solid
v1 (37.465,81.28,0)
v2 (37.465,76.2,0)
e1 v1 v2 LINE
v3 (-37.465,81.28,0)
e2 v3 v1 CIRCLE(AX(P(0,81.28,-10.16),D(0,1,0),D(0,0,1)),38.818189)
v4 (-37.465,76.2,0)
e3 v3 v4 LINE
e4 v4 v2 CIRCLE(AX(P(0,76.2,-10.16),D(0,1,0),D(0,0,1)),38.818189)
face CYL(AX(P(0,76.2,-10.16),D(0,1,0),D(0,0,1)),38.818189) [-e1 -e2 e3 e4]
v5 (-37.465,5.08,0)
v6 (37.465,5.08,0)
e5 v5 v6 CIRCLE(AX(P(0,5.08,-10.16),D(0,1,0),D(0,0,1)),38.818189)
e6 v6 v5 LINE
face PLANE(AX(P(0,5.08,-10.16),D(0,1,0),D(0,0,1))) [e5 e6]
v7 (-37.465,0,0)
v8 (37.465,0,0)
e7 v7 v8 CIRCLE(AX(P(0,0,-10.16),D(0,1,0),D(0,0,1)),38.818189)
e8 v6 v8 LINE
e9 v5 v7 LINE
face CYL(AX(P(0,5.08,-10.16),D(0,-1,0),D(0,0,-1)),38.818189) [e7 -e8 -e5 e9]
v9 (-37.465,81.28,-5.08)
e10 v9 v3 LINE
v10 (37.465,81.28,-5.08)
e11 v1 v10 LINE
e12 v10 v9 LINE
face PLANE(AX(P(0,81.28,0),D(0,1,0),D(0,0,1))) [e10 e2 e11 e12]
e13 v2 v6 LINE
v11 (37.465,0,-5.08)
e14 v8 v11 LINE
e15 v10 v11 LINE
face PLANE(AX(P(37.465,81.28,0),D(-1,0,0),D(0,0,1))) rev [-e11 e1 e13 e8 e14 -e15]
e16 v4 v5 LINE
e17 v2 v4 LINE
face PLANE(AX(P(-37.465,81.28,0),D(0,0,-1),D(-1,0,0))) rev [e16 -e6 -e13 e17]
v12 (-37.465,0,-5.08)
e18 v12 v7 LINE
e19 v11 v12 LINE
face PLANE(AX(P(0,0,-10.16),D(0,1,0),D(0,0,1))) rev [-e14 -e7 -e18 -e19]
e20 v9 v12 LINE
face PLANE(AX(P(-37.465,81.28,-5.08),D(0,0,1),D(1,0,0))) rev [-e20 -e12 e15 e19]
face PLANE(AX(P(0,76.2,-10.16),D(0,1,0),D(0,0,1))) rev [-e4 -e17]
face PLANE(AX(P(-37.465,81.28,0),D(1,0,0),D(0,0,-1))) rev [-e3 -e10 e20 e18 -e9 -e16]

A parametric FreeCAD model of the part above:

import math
import FreeCAD as App
import Part
import Sketcher
Q = App.Units.Quantity


def add_polygon(sketch, points):
    """Adds a closed chain of lines whose ends are joined by coincident constraints."""
    first, n = sketch.GeometryCount, len(points)
    for a, b in zip(points, points[1:] + points[:1]):
        sketch.addGeometry(Part.LineSegment(App.Vector(*a, 0), App.Vector(*b, 0)), False)
    for i in range(n):
        sketch.addConstraint(Sketcher.Constraint("Coincident", first + i, 2, first + (i + 1) % n, 1))

doc = App.newDocument("Part")
params = doc.addObject("Spreadsheet::Sheet", "Params")
for row, (alias, value) in enumerate([
    ("sketch1_width", "2.95 in"),
    ("pad1_length", "0.2 in"),
    ("sketch2_height", "0.2 in"),
    ("sketch2_width", "2.95 in"),
    ("pad2_length", "3 in"),
    ("pad2_length2", "0.2 in"),
    ("sketch3_width", "2.95 in"),
    ("pad3_length", "0.2 in"),
], start=1):
    params.set(f"A{row}", alias)
    params.set(f"B{row}", "=" + value)
    params.setAlias(f"B{row}", alias)

body = doc.addObject("PartDesign::Body", "Body")

# Sketch on XZ plane
sketch1 = doc.addObject("Sketcher::SketchObject", "Sketch")
body.addObject(sketch1)
sketch1.AttachmentSupport = (doc.XZ_Plane, [""])
sketch1.MapMode = "FlatFace"
sketch1.addGeometry(Part.LineSegment(App.Vector(37, 0, 0), App.Vector(-37, 0, 0)), False)
sketch1.addGeometry(Part.ArcOfCircle(Part.Circle(App.Vector(0, -10, 0), App.Vector(0, 0, 1), 39), math.radians(15), math.radians(165)), False)
sketch1.addConstraint(Sketcher.Constraint("Coincident", 0, 1, 1, 1))
sketch1.addConstraint(Sketcher.Constraint("Coincident", 1, 2, 0, 2))
sketch1.addConstraint(Sketcher.Constraint("Horizontal", 0))
sketch1.addConstraint(Sketcher.Constraint("Symmetric", 0, 1, 1, 2, -1, 1))
sketch1.addConstraint(Sketcher.Constraint("DistanceX", 0, 2, 0, 1, Q("2.95 in")))
sketch1.addConstraint(Sketcher.Constraint("DistanceY", 1, 3, -1, 1, Q("0.4 in")))
sketch1.setExpression("Constraints[4]", "Params.sketch1_width")
pad1 = doc.addObject("PartDesign::Pad", "Pad")
body.addObject(pad1)
pad1.Profile = sketch1
pad1.setExpression("Length", "Params.pad1_length")
pad1.Reversed = True

# Sketch on XZ plane
sketch2 = doc.addObject("Sketcher::SketchObject", "Sketch001")
body.addObject(sketch2)
sketch2.AttachmentSupport = (doc.XZ_Plane, [""])
sketch2.MapMode = "FlatFace"
sketch2.AttachmentOffset = App.Placement(App.Vector(0, 0, -0.2 * 25.4), App.Rotation())
add_polygon(sketch2, [(-37, -5), (-37, 0), (37, 0), (37, -5)])  # lines 0-3
sketch2.addConstraint(Sketcher.Constraint("Vertical", 0))
sketch2.addConstraint(Sketcher.Constraint("Horizontal", 1))
sketch2.addConstraint(Sketcher.Constraint("Vertical", 2))
sketch2.addConstraint(Sketcher.Constraint("Horizontal", 3))
sketch2.addConstraint(Sketcher.Constraint("Symmetric", 0, 2, 1, 2, -1, 1))
sketch2.addConstraint(Sketcher.Constraint("DistanceY", 0, 1, 0, 2, Q("0.2 in")))
sketch2.addConstraint(Sketcher.Constraint("DistanceX", 1, 1, 1, 2, Q("2.95 in")))
sketch2.setExpression("Constraints[9]", "Params.sketch2_height")
sketch2.setExpression("Constraints[10]", "Params.sketch2_width")
pad2 = doc.addObject("PartDesign::Pad", "Pad001")
body.addObject(pad2)
pad2.Profile = sketch2
pad2.Type = "TwoLengths"
pad2.setExpression("Length", "Params.pad2_length")
pad2.setExpression("Length2", "Params.pad2_length2")
pad2.Reversed = True

# Sketch on XZ plane
sketch3 = doc.addObject("Sketcher::SketchObject", "Sketch002")
body.addObject(sketch3)
sketch3.AttachmentSupport = (doc.XZ_Plane, [""])
sketch3.MapMode = "FlatFace"
sketch3.AttachmentOffset = App.Placement(App.Vector(0, 0, -3 * 25.4), App.Rotation())
sketch3.addGeometry(Part.LineSegment(App.Vector(37, 0, 0), App.Vector(-37, 0, 0)), False)
sketch3.addGeometry(Part.ArcOfCircle(Part.Circle(App.Vector(0, -10, 0), App.Vector(0, 0, 1), 39), math.radians(15), math.radians(165)), False)
sketch3.addConstraint(Sketcher.Constraint("Coincident", 0, 1, 1, 1))
sketch3.addConstraint(Sketcher.Constraint("Coincident", 1, 2, 0, 2))
sketch3.addConstraint(Sketcher.Constraint("Horizontal", 0))
sketch3.addConstraint(Sketcher.Constraint("Symmetric", 0, 1, 1, 2, -1, 1))
sketch3.addConstraint(Sketcher.Constraint("DistanceX", 0, 2, 0, 1, Q("2.95 in")))
sketch3.addConstraint(Sketcher.Constraint("DistanceY", 1, 3, -1, 1, Q("0.4 in")))
sketch3.setExpression("Constraints[4]", "Params.sketch3_width")
pad3 = doc.addObject("PartDesign::Pad", "Pad002")
body.addObject(pad3)
pad3.Profile = sketch3
pad3.setExpression("Length", "Params.pad3_length")
pad3.Reversed = True

doc.recompute()
